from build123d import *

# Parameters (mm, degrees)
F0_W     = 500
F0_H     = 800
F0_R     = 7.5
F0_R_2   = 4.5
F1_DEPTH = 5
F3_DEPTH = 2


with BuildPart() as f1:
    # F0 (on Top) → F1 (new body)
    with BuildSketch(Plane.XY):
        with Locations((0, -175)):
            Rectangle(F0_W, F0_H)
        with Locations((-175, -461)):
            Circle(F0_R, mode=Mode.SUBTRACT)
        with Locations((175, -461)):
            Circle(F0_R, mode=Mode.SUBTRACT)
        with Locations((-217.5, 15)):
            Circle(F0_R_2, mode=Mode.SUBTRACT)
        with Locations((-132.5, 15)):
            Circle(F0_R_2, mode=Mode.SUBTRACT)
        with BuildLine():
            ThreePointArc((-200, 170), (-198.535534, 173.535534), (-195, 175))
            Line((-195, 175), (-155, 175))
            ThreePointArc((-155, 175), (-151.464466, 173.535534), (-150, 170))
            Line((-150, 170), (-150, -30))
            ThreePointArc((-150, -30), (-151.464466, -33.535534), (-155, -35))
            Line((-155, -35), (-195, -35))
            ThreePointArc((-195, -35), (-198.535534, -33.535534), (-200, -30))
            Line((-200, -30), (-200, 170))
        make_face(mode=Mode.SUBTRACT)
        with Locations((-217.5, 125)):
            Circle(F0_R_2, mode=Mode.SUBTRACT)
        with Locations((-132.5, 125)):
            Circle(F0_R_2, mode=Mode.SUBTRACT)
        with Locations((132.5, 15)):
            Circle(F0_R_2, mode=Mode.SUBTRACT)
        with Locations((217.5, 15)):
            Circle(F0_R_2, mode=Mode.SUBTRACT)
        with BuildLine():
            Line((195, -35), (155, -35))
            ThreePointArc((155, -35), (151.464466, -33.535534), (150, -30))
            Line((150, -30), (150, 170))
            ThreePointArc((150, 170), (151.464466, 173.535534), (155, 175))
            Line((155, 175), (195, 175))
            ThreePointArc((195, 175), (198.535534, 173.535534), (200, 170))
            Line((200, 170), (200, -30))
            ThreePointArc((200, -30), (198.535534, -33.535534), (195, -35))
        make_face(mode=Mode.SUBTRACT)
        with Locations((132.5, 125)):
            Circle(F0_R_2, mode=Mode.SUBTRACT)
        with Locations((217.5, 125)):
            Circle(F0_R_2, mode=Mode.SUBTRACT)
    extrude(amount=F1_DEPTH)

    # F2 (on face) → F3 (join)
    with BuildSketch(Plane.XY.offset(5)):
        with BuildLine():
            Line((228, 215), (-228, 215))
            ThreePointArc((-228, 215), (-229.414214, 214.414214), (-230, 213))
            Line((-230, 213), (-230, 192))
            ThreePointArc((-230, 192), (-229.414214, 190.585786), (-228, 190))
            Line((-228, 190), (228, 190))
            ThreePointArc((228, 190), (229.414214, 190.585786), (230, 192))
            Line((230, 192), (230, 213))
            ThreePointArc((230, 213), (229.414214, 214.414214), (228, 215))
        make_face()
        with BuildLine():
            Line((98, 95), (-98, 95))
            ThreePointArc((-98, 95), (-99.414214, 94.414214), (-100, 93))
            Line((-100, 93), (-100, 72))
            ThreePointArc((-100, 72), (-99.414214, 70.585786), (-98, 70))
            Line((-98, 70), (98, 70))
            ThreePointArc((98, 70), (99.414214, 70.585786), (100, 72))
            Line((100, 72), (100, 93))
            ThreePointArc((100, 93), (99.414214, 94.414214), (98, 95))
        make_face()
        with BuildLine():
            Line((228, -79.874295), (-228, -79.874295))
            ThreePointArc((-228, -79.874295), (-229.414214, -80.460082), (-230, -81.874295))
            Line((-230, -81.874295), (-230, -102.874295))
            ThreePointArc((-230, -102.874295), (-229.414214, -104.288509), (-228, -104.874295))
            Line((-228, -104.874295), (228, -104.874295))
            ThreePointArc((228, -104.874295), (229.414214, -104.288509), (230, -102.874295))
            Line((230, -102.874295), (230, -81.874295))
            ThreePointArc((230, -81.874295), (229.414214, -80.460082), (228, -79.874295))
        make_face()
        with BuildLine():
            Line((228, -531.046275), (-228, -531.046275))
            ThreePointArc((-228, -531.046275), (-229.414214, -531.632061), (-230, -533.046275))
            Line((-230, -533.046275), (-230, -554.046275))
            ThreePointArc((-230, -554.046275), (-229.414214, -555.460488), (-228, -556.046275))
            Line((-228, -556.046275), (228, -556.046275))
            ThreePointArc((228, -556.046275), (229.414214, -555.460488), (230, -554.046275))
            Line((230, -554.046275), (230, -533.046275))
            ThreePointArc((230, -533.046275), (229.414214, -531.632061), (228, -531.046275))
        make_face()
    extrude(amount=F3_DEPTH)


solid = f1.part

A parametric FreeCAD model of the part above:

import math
import FreeCAD as App
import Part
import Sketcher

V = App.Vector


def add_polygon(sketch, points):
    """Adds a closed chain of lines whose ends are joined by coincident constraints."""
    first, n = sketch.GeometryCount, len(points)
    for a, b in zip(points, points[1:] + points[:1]):
        sketch.addGeometry(Part.LineSegment(App.Vector(*a, 0), App.Vector(*b, 0)), False)
    for i in range(n):
        sketch.addConstraint(Sketcher.Constraint("Coincident", first + i, 2, first + (i + 1) % n, 1))

doc = App.newDocument("Part")
body = doc.addObject("PartDesign::Body", "Body")

# Sketch on XY plane
sketch1 = body.newObject("Sketcher::SketchObject", "Sketch")
sketch1.AttachmentSupport = (doc.getObject("XY_Plane"), [""])
sketch1.MapMode = "FlatFace"
add_polygon(sketch1, [(-250, 225), (-250, -575), (250, -575), (250, 225)])  # lines 0-3
sketch1.addGeometry(Part.Circle(V(-175, -461, 0), V(0, 0, 1), 7.5), False)  # 4
sketch1.addGeometry(Part.Circle(V(175, -461, 0), V(0, 0, 1), 7.5), False)  # 5
sketch1.addGeometry(Part.Circle(V(-217.5, 15, 0), V(0, 0, 1), 4.5), False)  # 6
sketch1.addGeometry(Part.LineSegment(V(-200, -30, 0), V(-200, 170, 0)), False)  # 7
sketch1.addGeometry(Part.ArcOfCircle(Part.Circle(V(-195, 170, 0), V(0, 0, 1), 5), math.radians(90), math.radians(180)), False)  # 8
sketch1.addGeometry(Part.LineSegment(V(-195, 175, 0), V(-155, 175, 0)), False)  # 9
sketch1.addGeometry(Part.ArcOfCircle(Part.Circle(V(-155, 170, 0), V(0, 0, 1), 5), math.radians(0), math.radians(90)), False)  # 10
sketch1.addGeometry(Part.LineSegment(V(-150, 170, 0), V(-150, -30, 0)), False)  # 11
sketch1.addGeometry(Part.ArcOfCircle(Part.Circle(V(-155, -30, 0), V(0, 0, 1), 5), math.radians(-90), math.radians(0)), False)  # 12
sketch1.addGeometry(Part.LineSegment(V(-155, -35, 0), V(-195, -35, 0)), False)  # 13
sketch1.addGeometry(Part.ArcOfCircle(Part.Circle(V(-195, -30, 0), V(0, 0, 1), 5), math.radians(180), math.radians(270)), False)  # 14
sketch1.addGeometry(Part.Circle(V(-132.5, 15, 0), V(0, 0, 1), 4.5), False)  # 15
sketch1.addGeometry(Part.Circle(V(-217.5, 125, 0), V(0, 0, 1), 4.5), False)  # 16
sketch1.addGeometry(Part.Circle(V(-132.5, 125, 0), V(0, 0, 1), 4.5), False)  # 17
sketch1.addGeometry(Part.Circle(V(132.5, 15, 0), V(0, 0, 1), 4.5), False)  # 18
sketch1.addGeometry(Part.Circle(V(217.5, 15, 0), V(0, 0, 1), 4.5), False)  # 19
sketch1.addGeometry(Part.ArcOfCircle(Part.Circle(V(195, -30, 0), V(0, 0, 1), 5), math.radians(-90), math.radians(0)), False)  # 20
sketch1.addGeometry(Part.LineSegment(V(195, -35, 0), V(155, -35, 0)), False)  # 21
sketch1.addGeometry(Part.ArcOfCircle(Part.Circle(V(155, -30, 0), V(0, 0, 1), 5), math.radians(180), math.radians(270)), False)  # 22
sketch1.addGeometry(Part.LineSegment(V(150, -30, 0), V(150, 170, 0)), False)  # 23
sketch1.addGeometry(Part.ArcOfCircle(Part.Circle(V(155, 170, 0), V(0, 0, 1), 5), math.radians(90), math.radians(180)), False)  # 24
sketch1.addGeometry(Part.LineSegment(V(155, 175, 0), V(195, 175, 0)), False)  # 25
sketch1.addGeometry(Part.ArcOfCircle(Part.Circle(V(195, 170, 0), V(0, 0, 1), 5), math.radians(0), math.radians(90)), False)  # 26
sketch1.addGeometry(Part.LineSegment(V(200, 170, 0), V(200, -30, 0)), False)  # 27
sketch1.addGeometry(Part.Circle(V(132.5, 125, 0), V(0, 0, 1), 4.5), False)  # 28
sketch1.addGeometry(Part.Circle(V(217.5, 125, 0), V(0, 0, 1), 4.5), False)  # 29
sketch1.addConstraint([
    Sketcher.Constraint("Tangent", 7, 2, 8, 2),
    Sketcher.Constraint("Tangent", 8, 1, 9, 1),
    Sketcher.Constraint("Tangent", 9, 2, 10, 2),
    Sketcher.Constraint("Tangent", 10, 1, 11, 1),
    Sketcher.Constraint("Tangent", 11, 2, 12, 2),
    Sketcher.Constraint("Tangent", 12, 1, 13, 1),
    Sketcher.Constraint("Tangent", 13, 2, 14, 2),
    Sketcher.Constraint("Tangent", 14, 1, 7, 1),
    Sketcher.Constraint("Tangent", 20, 1, 21, 1),
    Sketcher.Constraint("Tangent", 21, 2, 22, 2),
    Sketcher.Constraint("Tangent", 22, 1, 23, 1),
    Sketcher.Constraint("Tangent", 23, 2, 24, 2),
    Sketcher.Constraint("Tangent", 24, 1, 25, 1),
    Sketcher.Constraint("Tangent", 25, 2, 26, 2),
    Sketcher.Constraint("Tangent", 26, 1, 27, 1),
    Sketcher.Constraint("Tangent", 27, 2, 20, 2),
    Sketcher.Constraint("Vertical", 0),
    Sketcher.Constraint("Horizontal", 1),
    Sketcher.Constraint("Vertical", 2),
    Sketcher.Constraint("Horizontal", 3),
    Sketcher.Constraint("Vertical", 7),
    Sketcher.Constraint("Horizontal", 9),
    Sketcher.Constraint("Vertical", 11),
    Sketcher.Constraint("Horizontal", 13),
    Sketcher.Constraint("Horizontal", 21),
    Sketcher.Constraint("Vertical", 23),
    Sketcher.Constraint("Horizontal", 25),
    Sketcher.Constraint("Vertical", 27),
    Sketcher.Constraint("Equal", 4, 5),
    Sketcher.Constraint("Equal", 8, 10),
    Sketcher.Constraint("Equal", 10, 12),
    Sketcher.Constraint("Equal", 12, 14),
    Sketcher.Constraint("Equal", 6, 15),
    Sketcher.Constraint("Equal", 15, 16),
    Sketcher.Constraint("Equal", 16, 17),
    Sketcher.Constraint("Equal", 17, 18),
    Sketcher.Constraint("Equal", 18, 19),
    Sketcher.Constraint("Equal", 14, 20),
    Sketcher.Constraint("Equal", 20, 22),
    Sketcher.Constraint("Equal", 22, 24),
    Sketcher.Constraint("Equal", 24, 26),
    Sketcher.Constraint("Equal", 19, 28),
    Sketcher.Constraint("Equal", 28, 29),
    Sketcher.Constraint("Symmetric", 4, 3, 5, 3, -2),
    Sketcher.Constraint("Symmetric", 15, 3, 18, 3, -2),
    Sketcher.Constraint("Symmetric", 6, 3, 19, 3, -2),
    Sketcher.Constraint("Symmetric", 14, 3, 20, 3, -2),
    Sketcher.Constraint("Symmetric", 10, 3, 24, 3, -2),
    Sketcher.Constraint("Symmetric", 17, 3, 28, 3, -2),
    Sketcher.Constraint("Symmetric", 16, 3, 29, 3, -2),
    Sketcher.Constraint("Horizontal", 6, 3, 15, 3),
    Sketcher.Constraint("Horizontal", 16, 3, 17, 3),
    Sketcher.Constraint("Vertical", 6, 3, 16, 3),
    Sketcher.Constraint("Vertical", 15, 3, 17, 3),
    Sketcher.Constraint("Diameter", 4, 15.0),
    Sketcher.Constraint("Diameter", 6, 9.0),
    Sketcher.Constraint("Radius", 8, 5.0),
    Sketcher.Constraint("DistanceX", 1, 1, 1, 2, 500.0),
    Sketcher.Constraint("DistanceX", 9, 1, 9, 2, 40.0),
    Sketcher.Constraint("DistanceY", 0, 2, 0, 1, 800.0),
    Sketcher.Constraint("DistanceY", 7, 1, 7, 2, 200.0),
    Sketcher.Constraint("DistanceX", 4, 3, -1, 1, 175.0),
    Sketcher.Constraint("DistanceY", 4, 3, -1, 1, 461.0),
    Sketcher.Constraint("DistanceY", -1, 1, 6, 3, 15.0),
    Sketcher.Constraint("DistanceX", 8, 3, -1, 1, 195.0),
    Sketcher.Constraint("DistanceY", -1, 1, 8, 3, 170.0),
    Sketcher.Constraint("DistanceY", -1, 1, 16, 3, 125.0),
    Sketcher.Constraint("DistanceX", 0, 2, -1, 1, 250.0),
    Sketcher.Constraint("DistanceY", 0, 2, -1, 1, 575.0),
    Sketcher.Constraint("DistanceX", 6, 3, 15, 3, 85.0),
    Sketcher.Constraint("DistanceX", 15, 3, 18, 3, 265.0),
])
pad1 = body.newObject("PartDesign::Pad", "Pad")
pad1.Profile = sketch1
pad1.Length = 5

# Sketch on XY plane
sketch2 = body.newObject("Sketcher::SketchObject", "Sketch001")
sketch2.AttachmentSupport = (doc.getObject("XY_Plane"), [""])
sketch2.MapMode = "FlatFace"
sketch2.AttachmentOffset = App.Placement(V(0, 0, 5), App.Rotation())
sketch2.addGeometry([
    Part.LineSegment(V(228, 215, 0), V(-228, 215, 0)),  # 0
    Part.ArcOfCircle(Part.Circle(V(-228, 213, 0), V(0, 0, 1), 2), math.radians(90), math.radians(180)),  # 1
    Part.LineSegment(V(-230, 213, 0), V(-230, 192, 0)),  # 2
    Part.ArcOfCircle(Part.Circle(V(-228, 192, 0), V(0, 0, 1), 2), math.radians(180), math.radians(270)),  # 3
    Part.LineSegment(V(-228, 190, 0), V(228, 190, 0)),  # 4
    Part.ArcOfCircle(Part.Circle(V(228, 192, 0), V(0, 0, 1), 2), math.radians(-90), math.radians(0)),  # 5
    Part.LineSegment(V(230, 192, 0), V(230, 213, 0)),  # 6
    Part.ArcOfCircle(Part.Circle(V(228, 213, 0), V(0, 0, 1), 2), math.radians(0), math.radians(90)),  # 7
    Part.LineSegment(V(98, 95, 0), V(-98, 95, 0)),  # 8
    Part.ArcOfCircle(Part.Circle(V(-98, 93, 0), V(0, 0, 1), 2), math.radians(90), math.radians(180)),  # 9
    Part.LineSegment(V(-100, 93, 0), V(-100, 72, 0)),  # 10
    Part.ArcOfCircle(Part.Circle(V(-98, 72, 0), V(0, 0, 1), 2), math.radians(180), math.radians(270)),  # 11
    Part.LineSegment(V(-98, 70, 0), V(98, 70, 0)),  # 12
    Part.ArcOfCircle(Part.Circle(V(98, 72, 0), V(0, 0, 1), 2), math.radians(-90), math.radians(0)),  # 13
    Part.LineSegment(V(100, 72, 0), V(100, 93, 0)),  # 14
    Part.ArcOfCircle(Part.Circle(V(98, 93, 0), V(0, 0, 1), 2), math.radians(0), math.radians(90)),  # 15
    Part.LineSegment(V(228, -79.9, 0), V(-228, -79.9, 0)),  # 16
    Part.ArcOfCircle(Part.Circle(V(-228, -81.9, 0), V(0, 0, 1), 2), math.radians(90), math.radians(180)),  # 17
    Part.LineSegment(V(-230, -81.9, 0), V(-230, -102.9, 0)),  # 18
    Part.ArcOfCircle(Part.Circle(V(-228, -102.9, 0), V(0, 0, 1), 2), math.radians(180), math.radians(270)),  # 19
    Part.LineSegment(V(-228, -104.9, 0), V(228, -104.9, 0)),  # 20
    Part.ArcOfCircle(Part.Circle(V(228, -102.9, 0), V(0, 0, 1), 2), math.radians(-90), math.radians(0)),  # 21
    Part.LineSegment(V(230, -102.9, 0), V(230, -81.9, 0)),  # 22
    Part.ArcOfCircle(Part.Circle(V(228, -81.9, 0), V(0, 0, 1), 2), math.radians(0), math.radians(90)),  # 23
    Part.LineSegment(V(228, -531, 0), V(-228, -531, 0)),  # 24
    Part.ArcOfCircle(Part.Circle(V(-228, -533, 0), V(0, 0, 1), 2), math.radians(90), math.radians(180)),  # 25
    Part.LineSegment(V(-230, -533, 0), V(-230, -554, 0)),  # 26
    Part.ArcOfCircle(Part.Circle(V(-228, -554, 0), V(0, 0, 1), 2), math.radians(-180), math.radians(-90)),  # 27
    Part.LineSegment(V(-228, -556, 0), V(228, -556, 0)),  # 28
    Part.ArcOfCircle(Part.Circle(V(228, -554, 0), V(0, 0, 1), 2), math.radians(-90), math.radians(0)),  # 29
    Part.LineSegment(V(230, -554, 0), V(230, -533, 0)),  # 30
    Part.ArcOfCircle(Part.Circle(V(228, -533, 0), V(0, 0, 1), 2), math.radians(0), math.radians(90)),  # 31
], False)
sketch2.addConstraint([
    Sketcher.Constraint("Tangent", 0, 2, 1, 1),
    Sketcher.Constraint("Tangent", 1, 2, 2, 1),
    Sketcher.Constraint("Tangent", 2, 2, 3, 1),
    Sketcher.Constraint("Tangent", 3, 2, 4, 1),
    Sketcher.Constraint("Tangent", 4, 2, 5, 1),
    Sketcher.Constraint("Tangent", 5, 2, 6, 1),
    Sketcher.Constraint("Tangent", 6, 2, 7, 1),
    Sketcher.Constraint("Tangent", 7, 2, 0, 1),
    Sketcher.Constraint("Tangent", 8, 2, 9, 1),
    Sketcher.Constraint("Tangent", 9, 2, 10, 1),
    Sketcher.Constraint("Tangent", 10, 2, 11, 1),
    Sketcher.Constraint("Tangent", 11, 2, 12, 1),
    Sketcher.Constraint("Tangent", 12, 2, 13, 1),
    Sketcher.Constraint("Tangent", 13, 2, 14, 1),
    Sketcher.Constraint("Tangent", 14, 2, 15, 1),
    Sketcher.Constraint("Tangent", 15, 2, 8, 1),
    Sketcher.Constraint("Tangent", 16, 2, 17, 1),
    Sketcher.Constraint("Tangent", 17, 2, 18, 1),
    Sketcher.Constraint("Tangent", 18, 2, 19, 1),
    Sketcher.Constraint("Tangent", 19, 2, 20, 1),
    Sketcher.Constraint("Tangent", 20, 2, 21, 1),
    Sketcher.Constraint("Tangent", 21, 2, 22, 1),
    Sketcher.Constraint("Tangent", 22, 2, 23, 1),
    Sketcher.Constraint("Tangent", 23, 2, 16, 1),
    Sketcher.Constraint("Tangent", 24, 2, 25, 1),
    Sketcher.Constraint("Tangent", 25, 2, 26, 1),
    Sketcher.Constraint("Tangent", 26, 2, 27, 1),
    Sketcher.Constraint("Tangent", 27, 2, 28, 1),
    Sketcher.Constraint("Tangent", 28, 2, 29, 1),
    Sketcher.Constraint("Tangent", 29, 2, 30, 1),
    Sketcher.Constraint("Tangent", 30, 2, 31, 1),
    Sketcher.Constraint("Tangent", 31, 2, 24, 1),
    Sketcher.Constraint("Horizontal", 0),
    Sketcher.Constraint("Vertical", 2),
    Sketcher.Constraint("Horizontal", 4),
    Sketcher.Constraint("Vertical", 6),
    Sketcher.Constraint("Horizontal", 8),
    Sketcher.Constraint("Vertical", 10),
    Sketcher.Constraint("Horizontal", 12),
    Sketcher.Constraint("Vertical", 14),
    Sketcher.Constraint("Horizontal", 16),
    Sketcher.Constraint("Vertical", 18),
    Sketcher.Constraint("Horizontal", 20),
    Sketcher.Constraint("Vertical", 22),
    Sketcher.Constraint("Horizontal", 24),
    Sketcher.Constraint("Vertical", 26),
    Sketcher.Constraint("Horizontal", 28),
    Sketcher.Constraint("Vertical", 30),
    Sketcher.Constraint("Equal", 1, 3),
    Sketcher.Constraint("Equal", 3, 5),
    Sketcher.Constraint("Equal", 5, 7),
    Sketcher.Constraint("Equal", 7, 9),
    Sketcher.Constraint("Equal", 9, 11),
    Sketcher.Constraint("Equal", 11, 13),
    Sketcher.Constraint("Equal", 13, 15),
    Sketcher.Constraint("Equal", 15, 17),
    Sketcher.Constraint("Equal", 17, 19),
    Sketcher.Constraint("Equal", 19, 21),
    Sketcher.Constraint("Equal", 21, 23),
    Sketcher.Constraint("Equal", 23, 25),
    Sketcher.Constraint("Equal", 25, 27),
    Sketcher.Constraint("Equal", 27, 29),
    Sketcher.Constraint("Equal", 29, 31),
    Sketcher.Constraint("Vertical", 3, 3, 17, 3),
    Sketcher.Constraint("Vertical", 7, 3, 21, 3),
    Sketcher.Constraint("Vertical", 19, 3, 25, 3),
    Sketcher.Constraint("Vertical", 23, 3, 29, 3),
    Sketcher.Constraint("Equal", 6, 10),
    Sketcher.Constraint("Equal", 14, 18),
    Sketcher.Constraint("Equal", 22, 26),
    Sketcher.Constraint("Radius", 1, 1.999999),
    Sketcher.Constraint("DistanceX", 0, 2, 0, 1, 456.0),
    Sketcher.Constraint("DistanceX", 8, 2, 8, 1, 196.0),
    Sketcher.Constraint("DistanceY", 2, 2, 2, 1, 21.0),
    Sketcher.Constraint("DistanceX", 1, 3, -1, 1, 228.000001),
    Sketcher.Constraint("DistanceY", -1, 1, 1, 3, 213.000001),
    Sketcher.Constraint("DistanceX", 9, 3, -1, 1, 98.000001),
    Sketcher.Constraint("DistanceY", -1, 1, 9, 3, 93.000001),
    Sketcher.Constraint("DistanceY", 25, 3, 17, 3, 451.171978),
    Sketcher.Constraint("DistanceY", 17, 3, -1, 1, 81.874295),
])
pad2 = body.newObject("PartDesign::Pad", "Pad001")
pad2.Profile = sketch2
pad2.Length = 2

doc.recompute()
